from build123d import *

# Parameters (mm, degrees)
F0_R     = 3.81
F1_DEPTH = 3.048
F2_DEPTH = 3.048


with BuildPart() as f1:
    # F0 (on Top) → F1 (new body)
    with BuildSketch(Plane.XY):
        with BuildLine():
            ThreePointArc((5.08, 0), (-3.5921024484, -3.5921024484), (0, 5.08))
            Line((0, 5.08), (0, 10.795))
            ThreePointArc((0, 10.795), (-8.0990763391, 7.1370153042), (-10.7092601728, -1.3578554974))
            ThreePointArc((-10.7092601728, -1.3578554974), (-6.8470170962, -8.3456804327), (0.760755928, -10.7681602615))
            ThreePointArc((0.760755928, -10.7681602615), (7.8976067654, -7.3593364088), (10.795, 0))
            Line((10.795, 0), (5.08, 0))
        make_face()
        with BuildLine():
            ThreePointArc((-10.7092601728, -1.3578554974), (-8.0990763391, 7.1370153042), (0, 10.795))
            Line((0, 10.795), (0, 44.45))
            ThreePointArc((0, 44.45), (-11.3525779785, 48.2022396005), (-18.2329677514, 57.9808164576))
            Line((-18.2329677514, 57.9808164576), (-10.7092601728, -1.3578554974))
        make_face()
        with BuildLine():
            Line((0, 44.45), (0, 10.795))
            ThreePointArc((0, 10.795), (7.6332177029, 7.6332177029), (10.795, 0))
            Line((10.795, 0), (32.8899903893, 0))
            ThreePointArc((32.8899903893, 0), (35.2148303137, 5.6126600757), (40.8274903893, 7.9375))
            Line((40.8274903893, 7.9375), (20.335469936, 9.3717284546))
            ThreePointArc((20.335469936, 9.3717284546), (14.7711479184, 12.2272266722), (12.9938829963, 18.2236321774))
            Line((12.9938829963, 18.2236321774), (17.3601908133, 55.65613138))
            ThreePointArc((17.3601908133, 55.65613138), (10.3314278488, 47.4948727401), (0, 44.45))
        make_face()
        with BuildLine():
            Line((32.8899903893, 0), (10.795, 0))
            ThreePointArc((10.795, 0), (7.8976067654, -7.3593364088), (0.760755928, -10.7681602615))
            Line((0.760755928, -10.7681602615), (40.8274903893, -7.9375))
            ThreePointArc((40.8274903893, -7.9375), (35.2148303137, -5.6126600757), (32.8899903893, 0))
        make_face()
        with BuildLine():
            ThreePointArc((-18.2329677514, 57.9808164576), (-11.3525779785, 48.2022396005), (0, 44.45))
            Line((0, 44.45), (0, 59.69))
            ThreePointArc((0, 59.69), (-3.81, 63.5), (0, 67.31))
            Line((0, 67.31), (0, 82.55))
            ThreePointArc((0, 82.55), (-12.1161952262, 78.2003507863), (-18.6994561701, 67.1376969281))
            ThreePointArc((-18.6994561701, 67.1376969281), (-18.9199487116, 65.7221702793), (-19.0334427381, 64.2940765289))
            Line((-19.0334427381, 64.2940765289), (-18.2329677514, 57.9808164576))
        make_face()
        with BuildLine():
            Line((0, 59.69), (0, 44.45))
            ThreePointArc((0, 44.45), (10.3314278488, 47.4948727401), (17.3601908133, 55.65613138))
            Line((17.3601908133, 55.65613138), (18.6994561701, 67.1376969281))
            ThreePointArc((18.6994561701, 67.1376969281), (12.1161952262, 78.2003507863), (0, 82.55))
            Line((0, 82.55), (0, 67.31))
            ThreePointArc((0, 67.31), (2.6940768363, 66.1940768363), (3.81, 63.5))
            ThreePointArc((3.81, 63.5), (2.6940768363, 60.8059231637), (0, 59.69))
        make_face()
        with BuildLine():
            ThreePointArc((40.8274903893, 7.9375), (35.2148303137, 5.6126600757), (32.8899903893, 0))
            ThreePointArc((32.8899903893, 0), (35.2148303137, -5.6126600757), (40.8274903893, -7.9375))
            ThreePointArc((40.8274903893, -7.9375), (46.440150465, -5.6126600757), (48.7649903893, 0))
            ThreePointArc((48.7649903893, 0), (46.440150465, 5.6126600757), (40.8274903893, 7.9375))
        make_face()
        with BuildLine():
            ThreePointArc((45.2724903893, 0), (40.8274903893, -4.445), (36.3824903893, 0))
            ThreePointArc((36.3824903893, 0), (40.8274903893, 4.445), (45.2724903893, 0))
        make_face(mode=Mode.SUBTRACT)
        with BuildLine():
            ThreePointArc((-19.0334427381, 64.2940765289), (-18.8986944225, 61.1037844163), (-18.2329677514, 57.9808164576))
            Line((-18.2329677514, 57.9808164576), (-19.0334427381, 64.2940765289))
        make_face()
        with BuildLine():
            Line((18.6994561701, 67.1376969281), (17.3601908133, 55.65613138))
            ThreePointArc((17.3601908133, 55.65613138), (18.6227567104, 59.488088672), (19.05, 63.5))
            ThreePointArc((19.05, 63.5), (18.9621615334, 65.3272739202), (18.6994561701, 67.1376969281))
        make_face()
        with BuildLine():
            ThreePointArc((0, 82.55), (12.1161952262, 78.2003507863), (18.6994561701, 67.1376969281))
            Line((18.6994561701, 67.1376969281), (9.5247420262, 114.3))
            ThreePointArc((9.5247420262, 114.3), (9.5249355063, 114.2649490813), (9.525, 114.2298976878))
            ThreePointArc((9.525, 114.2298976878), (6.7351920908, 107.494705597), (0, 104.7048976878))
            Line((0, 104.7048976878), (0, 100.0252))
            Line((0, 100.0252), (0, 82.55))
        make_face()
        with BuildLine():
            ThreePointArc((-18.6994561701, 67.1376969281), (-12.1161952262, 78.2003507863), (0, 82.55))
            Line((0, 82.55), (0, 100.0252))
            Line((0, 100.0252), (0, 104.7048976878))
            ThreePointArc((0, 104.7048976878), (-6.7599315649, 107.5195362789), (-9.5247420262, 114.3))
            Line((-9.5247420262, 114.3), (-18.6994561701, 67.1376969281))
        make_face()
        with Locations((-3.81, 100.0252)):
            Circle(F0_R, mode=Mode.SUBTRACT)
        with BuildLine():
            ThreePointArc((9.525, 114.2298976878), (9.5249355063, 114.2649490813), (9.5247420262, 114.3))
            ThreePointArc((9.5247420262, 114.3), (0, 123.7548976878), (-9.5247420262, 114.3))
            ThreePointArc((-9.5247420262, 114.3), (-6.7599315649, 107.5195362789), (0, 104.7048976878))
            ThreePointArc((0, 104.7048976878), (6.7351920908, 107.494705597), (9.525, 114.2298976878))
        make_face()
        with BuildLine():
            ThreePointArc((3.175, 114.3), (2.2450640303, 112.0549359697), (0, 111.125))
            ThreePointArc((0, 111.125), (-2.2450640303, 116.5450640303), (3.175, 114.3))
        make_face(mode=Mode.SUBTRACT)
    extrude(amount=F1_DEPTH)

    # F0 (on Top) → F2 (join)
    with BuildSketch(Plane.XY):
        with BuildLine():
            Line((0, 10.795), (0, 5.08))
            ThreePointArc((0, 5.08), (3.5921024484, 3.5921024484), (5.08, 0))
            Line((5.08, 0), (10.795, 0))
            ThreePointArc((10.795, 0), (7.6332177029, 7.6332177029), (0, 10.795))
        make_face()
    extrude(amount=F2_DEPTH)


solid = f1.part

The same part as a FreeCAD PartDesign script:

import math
import FreeCAD as App
import Part
import Sketcher
from FreeCAD import Vector
Q = App.Units.Quantity

doc = App.newDocument("Part")
params = doc.addObject("Spreadsheet::Sheet", "Params")
for row, (alias, value) in enumerate([
    ("sketch1_diameter", "0.3 in"),
    ("sketch1_radius", "0.2 in"),
    ("sketch1_diameter2", "0.35 in"),
    ("sketch1_radius2", "0.75 in"),
    ("sketch1_radius3", "0.75 in"),
    ("pad1_length", "0.12 in"),
    ("sketch2_radius", "0.2 in"),
    ("sketch2_radius2", "0.425 in"),
    ("pad2_length", "0.12 in"),
], start=1):
    params.set(f"A{row}", alias)
    params.set(f"B{row}", "=" + value)
    params.setAlias(f"B{row}", alias)

body = doc.addObject("PartDesign::Body", "Body")

# Sketch on XY plane
sketch1 = doc.addObject("Sketcher::SketchObject", "Sketch")
body.addObject(sketch1)
sketch1.AttachmentSupport = (doc.XY_Plane, [""])
sketch1.MapMode = "FlatFace"
sketch1.addGeometry(Part.ArcOfCircle(Part.Circle(Vector(0, 0, 0), Vector(0, 0, 1), 10.795), math.radians(-172.773875), math.radians(-85.958845)), False)
sketch1.addGeometry(Part.LineSegment(Vector(0.760756, -10.76816, 0), Vector(40.82749, -7.9375, 0)), False)
sketch1.addGeometry(Part.ArcOfCircle(Part.Circle(Vector(40.82749, 0, 0), Vector(0, 0, 1), 7.9375), math.radians(-90), math.radians(0)), False)
sketch1.addGeometry(Part.ArcOfCircle(Part.Circle(Vector(40.82749, 0, 0), Vector(0, 0, 1), 7.9375), math.radians(0), math.radians(90)), False)
sketch1.addGeometry(Part.LineSegment(Vector(40.82749, 7.9375, 0), Vector(20.33547, 9.371728, 0)), False)
sketch1.addGeometry(Part.ArcOfCircle(Part.Circle(Vector(20.890543, 17.302527, 0), Vector(0, 0, 1), 7.9502), math.radians(173.346809), math.radians(265.99642)), False)
sketch1.addGeometry(Part.LineSegment(Vector(12.993883, 18.223632, 0), Vector(17.360191, 55.656131, 0)), False)
sketch1.addGeometry(Part.ArcOfCircle(Part.Circle(Vector(0, 63.5, 0), Vector(0, 0, 1), 19.05), math.radians(-24.314917), math.radians(0)), False)
sketch1.addGeometry(Part.ArcOfCircle(Part.Circle(Vector(0, 63.5, 0), Vector(0, 0, 1), 19.05), math.radians(0), math.radians(11.008535)), False)
sketch1.addGeometry(Part.LineSegment(Vector(18.699456, 67.137697, 0), Vector(9.524742, 114.3, 0)), False)
sketch1.addGeometry(Part.ArcOfCircle(Part.Circle(Vector(0, 114.229898, 0), Vector(0, 0, 1), 9.525), math.radians(0.421691), math.radians(179.578309)), False)
sketch1.addGeometry(Part.LineSegment(Vector(-9.524742, 114.3, 0), Vector(-18.699456, 67.137697, 0)), False)
sketch1.addGeometry(Part.ArcOfCircle(Part.Circle(Vector(0, 63.5, 0), Vector(0, 0, 1), 19.05), math.radians(168.991465), math.radians(177.611002)), False)
sketch1.addGeometry(Part.ArcOfCircle(Part.Circle(Vector(0, 63.5, 0), Vector(0, 0, 1), 19.05), math.radians(177.611002), math.radians(196.841249)), False)
sketch1.addGeometry(Part.LineSegment(Vector(-18.232968, 57.980816, 0), Vector(-10.70926, -1.357855, 0)), False)
sketch1.addGeometry(Part.ArcOfCircle(Part.Circle(Vector(0, 0, 0), Vector(0, 0, 1), 10.795), math.radians(0), math.radians(90)), False)
sketch1.addGeometry(Part.LineSegment(Vector(10.795, 0, 0), Vector(5.08, 0, 0)), False)
sketch1.addGeometry(Part.ArcOfCircle(Part.Circle(Vector(0, 0, 0), Vector(0, 0, 1), 5.08), math.radians(90), math.radians(360)), False)
sketch1.addGeometry(Part.LineSegment(Vector(0, 5.08, 0), Vector(0, 10.795, 0)), False)
sketch1.addGeometry(Part.Circle(Vector(40.82749, 0, 0), Vector(0, 0, 1), 4.445), False)
sketch1.addGeometry(Part.ArcOfCircle(Part.Circle(Vector(0, 63.5, 0), Vector(0, 0, 1), 3.81), math.radians(90), math.radians(270)), False)
sketch1.addGeometry(Part.ArcOfCircle(Part.Circle(Vector(0, 63.5, 0), Vector(0, 0, 1), 3.81), math.radians(0), math.radians(90)), False)
sketch1.addGeometry(Part.ArcOfCircle(Part.Circle(Vector(0, 63.5, 0), Vector(0, 0, 1), 3.81), math.radians(-90), math.radians(0)), False)
sketch1.addGeometry(Part.Circle(Vector(-3.81, 100.0252, 0), Vector(0, 0, 1), 3.81), False)
sketch1.addGeometry(Part.ArcOfCircle(Part.Circle(Vector(0, 114.3, 0), Vector(0, 0, 1), 3.175), math.radians(0), math.radians(270)), False)
sketch1.addGeometry(Part.ArcOfCircle(Part.Circle(Vector(0, 114.3, 0), Vector(0, 0, 1), 3.175), math.radians(-90), math.radians(0)), False)
sketch1.addConstraint(Sketcher.Constraint("Coincident", 0, 2, 1, 1))
sketch1.addConstraint(Sketcher.Constraint("Coincident", 1, 2, 2, 1))
sketch1.addConstraint(Sketcher.Constraint("Coincident", 2, 2, 3, 1))
sketch1.addConstraint(Sketcher.Constraint("Coincident", 3, 2, 4, 1))
sketch1.addConstraint(Sketcher.Constraint("Coincident", 4, 2, 5, 2))
sketch1.addConstraint(Sketcher.Constraint("Coincident", 5, 1, 6, 1))
sketch1.addConstraint(Sketcher.Constraint("Coincident", 6, 2, 7, 1))
sketch1.addConstraint(Sketcher.Constraint("Coincident", 7, 2, 8, 1))
sketch1.addConstraint(Sketcher.Constraint("Coincident", 8, 2, 9, 1))
sketch1.addConstraint(Sketcher.Constraint("Coincident", 9, 2, 10, 1))
sketch1.addConstraint(Sketcher.Constraint("Coincident", 10, 2, 11, 1))
sketch1.addConstraint(Sketcher.Constraint("Coincident", 11, 2, 12, 1))
sketch1.addConstraint(Sketcher.Constraint("Coincident", 12, 2, 13, 1))
sketch1.addConstraint(Sketcher.Constraint("Coincident", 13, 2, 14, 1))
sketch1.addConstraint(Sketcher.Constraint("Coincident", 14, 2, 0, 1))
sketch1.addConstraint(Sketcher.Constraint("Coincident", 15, 1, 16, 1))
sketch1.addConstraint(Sketcher.Constraint("Coincident", 16, 2, 17, 2))
sketch1.addConstraint(Sketcher.Constraint("Coincident", 17, 1, 18, 1))
sketch1.addConstraint(Sketcher.Constraint("Coincident", 18, 2, 15, 2))
sketch1.addConstraint(Sketcher.Constraint("Coincident", 20, 1, 21, 2))
sketch1.addConstraint(Sketcher.Constraint("Coincident", 21, 1, 22, 2))
sketch1.addConstraint(Sketcher.Constraint("Coincident", 22, 1, 20, 2))
sketch1.addConstraint(Sketcher.Constraint("Coincident", 24, 1, 25, 2))
sketch1.addConstraint(Sketcher.Constraint("Coincident", 25, 1, 24, 2))
sketch1.addConstraint(Sketcher.Constraint("Horizontal", 16))
sketch1.addConstraint(Sketcher.Constraint("Vertical", 18))
sketch1.addConstraint(Sketcher.Constraint("Coincident", 0, 3, -1, 1))
sketch1.addConstraint(Sketcher.Constraint("Coincident", 15, 3, -1, 1))
sketch1.addConstraint(Sketcher.Constraint("Coincident", 17, 3, -1, 1))
sketch1.addConstraint(Sketcher.Constraint("Coincident", 3, 3, 2, 3))
sketch1.addConstraint(Sketcher.Constraint("Coincident", 8, 3, 7, 3))
sketch1.addConstraint(Sketcher.Constraint("Coincident", 12, 3, 7, 3))
sketch1.addConstraint(Sketcher.Constraint("Coincident", 13, 3, 7, 3))
sketch1.addConstraint(Sketcher.Constraint("Coincident", 19, 3, 2, 3))
sketch1.addConstraint(Sketcher.Constraint("Coincident", 20, 3, 7, 3))
sketch1.addConstraint(Sketcher.Constraint("Coincident", 21, 3, 7, 3))
sketch1.addConstraint(Sketcher.Constraint("PointOnObject", 2, 3, -1))
sketch1.addConstraint(Sketcher.Constraint("PointOnObject", 7, 3, -2))
sketch1.addConstraint(Sketcher.Constraint("PointOnObject", 10, 3, -2))
sketch1.addConstraint(Sketcher.Constraint("PointOnObject", 22, 3, -2))
sketch1.addConstraint(Sketcher.Constraint("PointOnObject", 24, 3, -2))
sketch1.addConstraint(Sketcher.Constraint("PointOnObject", 25, 3, -2))
sketch1.addConstraint(Sketcher.Constraint("PointOnObject", 2, 2, -1))
sketch1.addConstraint(Sketcher.Constraint("PointOnObject", 15, 1, -1))
sketch1.addConstraint(Sketcher.Constraint("PointOnObject", 17, 1, -2))
sketch1.addConstraint(Sketcher.Constraint("PointOnObject", 20, 1, -2))
sketch1.addConstraint(Sketcher.Constraint("PointOnObject", 22, 1, -2))
sketch1.addConstraint(Sketcher.Constraint("PointOnObject", 25, 1, -2))
sketch1.addConstraint(Sketcher.Constraint("Diameter", 23, Q("0.3 in")))
sketch1.addConstraint(Sketcher.Constraint("Radius", 17, Q("0.2 in")))
sketch1.addConstraint(Sketcher.Constraint("Diameter", 19, Q("0.35 in")))
sketch1.addConstraint(Sketcher.Constraint("Radius", 7, Q("0.75 in")))
sketch1.addConstraint(Sketcher.Constraint("Radius", 12, Q("0.75 in")))
sketch1.addConstraint(Sketcher.Constraint("Radius", 20, Q("0.15 in")))
sketch1.addConstraint(Sketcher.Constraint("Radius", 0, Q("0.425 in")))
sketch1.addConstraint(Sketcher.Constraint("Radius", 2, Q("0.3125 in")))
sketch1.addConstraint(Sketcher.Constraint("Radius", 5, Q("0.313 in")))
sketch1.addConstraint(Sketcher.Constraint("Radius", 10, Q("0.375 in")))
sketch1.addConstraint(Sketcher.Constraint("Radius", 15, Q("0.425 in")))
sketch1.addConstraint(Sketcher.Constraint("Radius", 24, Q("0.125 in")))
sketch1.addConstraint(Sketcher.Constraint("DistanceY", 12, 3, 24, 3, Q("2 in")))
sketch1.addConstraint(Sketcher.Constraint("DistanceY", -1, 1, 7, 3, Q("2.5 in")))
sketch1.addConstraint(Sketcher.Constraint("DistanceY", -1, 1, 7, 2, Q("2.5 in")))
sketch1.addConstraint(Sketcher.Constraint("DistanceY", -1, 1, 9, 2, Q("4.5 in")))
sketch1.addConstraint(Sketcher.Constraint("DistanceY", -1, 1, 10, 2, Q("4.5 in")))
sketch1.addConstraint(Sketcher.Constraint("DistanceY", -1, 1, 21, 1, Q("2.5 in")))
sketch1.addConstraint(Sketcher.Constraint("DistanceY", -1, 1, 24, 1, Q("4.5 in")))
sketch1.addConstraint(Sketcher.Constraint("DistanceX", 23, 3, -1, 1, Q("0.15 in")))
sketch1.addConstraint(Sketcher.Constraint("DistanceY", -1, 1, 23, 3, Q("3.938 in")))
sketch1.addConstraint(Sketcher.Constraint("DistanceX", 1, 2, 2, 2, Q("0.3125 in")))
sketch1.addConstraint(Sketcher.Constraint("DistanceX", 3, 2, 2, 2, Q("0.3125 in")))
sketch1.addConstraint(Sketcher.Constraint("DistanceY", 4, 2, 5, 1, Q("0.3485001 in")))
sketch1.addConstraint(Sketcher.Constraint("Distance", 1, 40.166601))
sketch1.addConstraint(Sketcher.Constraint("DistanceY", 4, 2, 5, 3, 7.930799))
sketch1.addConstraint(Sketcher.Constraint("Distance", 4, 20.54215))
sketch1.addConstraint(Sketcher.Constraint("DistanceX", -1, 1, 2, 3, 40.82749))
sketch1.addConstraint(Sketcher.Constraint("DistanceX", -1, 1, 4, 2, 20.33547))
sketch1.addConstraint(Sketcher.Constraint("DistanceX", -1, 1, 6, 2, 17.360191))
sketch1.addConstraint(Sketcher.Constraint("DistanceX", 14, 2, -1, 1, 10.70926))
sketch1.addConstraint(Sketcher.Constraint("DistanceY", 5, 3, 10, 3, 96.92737))
sketch1.addConstraint(Sketcher.Constraint("DistanceY", 12, 2, 11, 2, 2.84362))
sketch1.addConstraint(Sketcher.Constraint("DistanceY", 13, 2, 12, 2, 6.31326))
sketch1.addConstraint(Sketcher.Constraint("DistanceX", 11, 2, 13, 2, 0.466488))
sketch1.addConstraint(Sketcher.Constraint("Distance", 9, 48.046417))
sketch1.setExpression("Constraints[48]", "Params.sketch1_diameter")
sketch1.setExpression("Constraints[49]", "Params.sketch1_radius")
sketch1.setExpression("Constraints[50]", "Params.sketch1_diameter2")
sketch1.setExpression("Constraints[51]", "Params.sketch1_radius2")
sketch1.setExpression("Constraints[52]", "Params.sketch1_radius3")
pad1 = doc.addObject("PartDesign::Pad", "Pad")
body.addObject(pad1)
pad1.Profile = sketch1
pad1.setExpression("Length", "Params.pad1_length")

# Sketch on XY plane
sketch2 = doc.addObject("Sketcher::SketchObject", "Sketch001")
body.addObject(sketch2)
sketch2.AttachmentSupport = (doc.XY_Plane, [""])
sketch2.MapMode = "FlatFace"
sketch2.addGeometry(Part.LineSegment(Vector(0, 11, 0), Vector(0, 5, 0)), False)
sketch2.addGeometry(Part.ArcOfCircle(Part.Circle(Vector(0, 0, 0), Vector(0, 0, 1), 5), math.radians(0), math.radians(90)), False)
sketch2.addGeometry(Part.LineSegment(Vector(5, 0, 0), Vector(11, 0, 0)), False)
sketch2.addGeometry(Part.ArcOfCircle(Part.Circle(Vector(0, 0, 0), Vector(0, 0, 1), 11), math.radians(0), math.radians(90)), False)
sketch2.addConstraint(Sketcher.Constraint("Coincident", 0, 2, 1, 2))
sketch2.addConstraint(Sketcher.Constraint("Coincident", 1, 1, 2, 1))
sketch2.addConstraint(Sketcher.Constraint("Coincident", 2, 2, 3, 1))
sketch2.addConstraint(Sketcher.Constraint("Coincident", 3, 2, 0, 1))
sketch2.addConstraint(Sketcher.Constraint("Vertical", 0))
sketch2.addConstraint(Sketcher.Constraint("Horizontal", 2))
sketch2.addConstraint(Sketcher.Constraint("Coincident", 1, 3, -1, 1))
sketch2.addConstraint(Sketcher.Constraint("Coincident", 3, 3, -1, 1))
sketch2.addConstraint(Sketcher.Constraint("PointOnObject", 0, 2, -2))
sketch2.addConstraint(Sketcher.Constraint("PointOnObject", 1, 1, -1))
sketch2.addConstraint(Sketcher.Constraint("Radius", 1, Q("0.2 in")))
sketch2.addConstraint(Sketcher.Constraint("Radius", 3, Q("0.425 in")))
sketch2.setExpression("Constraints[10]", "Params.sketch2_radius")
sketch2.setExpression("Constraints[11]", "Params.sketch2_radius2")
pad2 = doc.addObject("PartDesign::Pad", "Pad001")
body.addObject(pad2)
pad2.Profile = sketch2
pad2.setExpression("Length", "Params.pad2_length")

doc.recompute()
